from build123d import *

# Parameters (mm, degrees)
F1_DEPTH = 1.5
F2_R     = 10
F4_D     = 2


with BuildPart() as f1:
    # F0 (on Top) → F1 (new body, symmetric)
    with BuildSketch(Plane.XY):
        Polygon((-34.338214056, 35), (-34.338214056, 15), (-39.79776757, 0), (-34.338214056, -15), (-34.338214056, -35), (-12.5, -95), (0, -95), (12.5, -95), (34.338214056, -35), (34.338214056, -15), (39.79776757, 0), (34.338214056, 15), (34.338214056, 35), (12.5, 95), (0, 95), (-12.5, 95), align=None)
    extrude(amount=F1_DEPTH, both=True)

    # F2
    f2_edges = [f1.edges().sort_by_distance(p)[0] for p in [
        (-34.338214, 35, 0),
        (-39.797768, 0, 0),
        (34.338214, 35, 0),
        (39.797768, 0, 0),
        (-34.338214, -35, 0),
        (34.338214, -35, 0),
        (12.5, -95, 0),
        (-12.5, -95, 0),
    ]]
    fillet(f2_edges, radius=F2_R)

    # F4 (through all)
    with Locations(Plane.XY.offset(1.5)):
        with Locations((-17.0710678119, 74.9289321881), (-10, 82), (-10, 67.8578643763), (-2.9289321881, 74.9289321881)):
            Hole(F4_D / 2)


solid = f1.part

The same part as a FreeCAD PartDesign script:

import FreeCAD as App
import Part
import Sketcher
Q = App.Units.Quantity


def edges_at(feature, points):
    """Names of the edges that pass closest to the given points."""
    edges = feature.Shape.Edges
    near = lambda p: min(range(len(edges)), key=lambda i: edges[i].distToShape(Part.Vertex(*p))[0])
    return sorted({f"Edge{near(p) + 1}" for p in points})


def add_polygon(sketch, points):
    """Adds a closed chain of lines whose ends are joined by coincident constraints."""
    first, n = sketch.GeometryCount, len(points)
    for a, b in zip(points, points[1:] + points[:1]):
        sketch.addGeometry(Part.LineSegment(App.Vector(*a, 0), App.Vector(*b, 0)), False)
    for i in range(n):
        sketch.addConstraint(Sketcher.Constraint("Coincident", first + i, 2, first + (i + 1) % n, 1))

doc = App.newDocument("Part")
params = doc.addObject("Spreadsheet::Sheet", "Params")
for row, (alias, value) in enumerate([
    ("sketch1_width", "25 mm"),
    ("sketch1_height", "20 mm"),
    ("pad1_length", "3 mm"),
    ("fillet_radius", "10 mm"),
    ("sketch2_diameter", "2 mm"),
    ("hole_diameter", "2 mm"),
], start=1):
    params.set(f"A{row}", alias)
    params.set(f"B{row}", "=" + value)
    params.setAlias(f"B{row}", alias)

body = doc.addObject("PartDesign::Body", "Body")

# Sketch on XY plane
sketch1 = body.newObject("Sketcher::SketchObject", "Sketch")
sketch1.AttachmentSupport = (doc.getObject("XY_Plane"), [""])
sketch1.MapMode = "FlatFace"
add_polygon(sketch1, [(-34, 35), (-34, 15), (-40, 0), (-34, -15), (-34, -35), (-12, -95), (12, -95), (34, -35), (34, -15), (40, 0), (34, 15), (34, 35), (12, 95), (-12, 95)])  # lines 0-13
sketch1.addConstraint([
    Sketcher.Constraint("Vertical", 0),
    Sketcher.Constraint("Vertical", 3),
    Sketcher.Constraint("Horizontal", 5),
    Sketcher.Constraint("Vertical", 7),
    Sketcher.Constraint("Vertical", 10),
    Sketcher.Constraint("Horizontal", 12),
    Sketcher.Constraint("Symmetric", 0, 2, 7, 2, -1, 1),
    Sketcher.Constraint("Symmetric", 1, 2, 8, 2, -1, 1),
    Sketcher.Constraint("Symmetric", 2, 2, 9, 2, -1, 1),
    Sketcher.Constraint("Symmetric", 4, 2, 11, 2, -1, 1),
    Sketcher.Constraint("Symmetric", 3, 2, 6, 2, -2),
    Sketcher.Constraint("PointOnObject", 1, 2, -1),
    Sketcher.Constraint("Parallel", 2, 4),
    Sketcher.Constraint("Parallel", 1, 6),
    Sketcher.Constraint("Parallel", 9, 11),
    Sketcher.Constraint("Parallel", 8, 13),
    Sketcher.Constraint("Horizontal", 2, 2, 7, 2),
    Sketcher.Constraint("Horizontal", 10, 2, 13, 2),
    Sketcher.Constraint("DistanceX", 5, 1, 5, 2, 25.0),
    Sketcher.Constraint("DistanceY", 0, 2, 0, 1, 20.0),
    Sketcher.Constraint("Angle", 1, Q("-110 deg")),
    Sketcher.Constraint("DistanceY", -1, 1, 0, 2, 15.0),
    Sketcher.Constraint("DistanceY", 4, 2, -1, 1, 95.0),
])
sketch1.setExpression("Constraints[32]", "Params.sketch1_width")
sketch1.setExpression("Constraints[33]", "Params.sketch1_height")
pad1 = body.newObject("PartDesign::Pad", "Pad")
pad1.Profile = sketch1
pad1.setExpression("Length", "Params.pad1_length")
pad1.Midplane = True
doc.recompute()

fillet = body.newObject("PartDesign::Fillet", "Fillet")
fillet.Base = (pad1, edges_at(pad1, [
    (-34.338, 35, 0),
    (-39.798, 0, 0),
    (34.338, 35, 0),
    (39.798, 0, 0),
    (-34.338, -35, 0),
    (34.338, -35, 0),
    (12.5, -95, 0),
    (-12.5, -95, 0),
]))
fillet.setExpression("Radius", "Params.fillet_radius")

# Sketch on XY plane
sketch2 = body.newObject("Sketcher::SketchObject", "Sketch001")
sketch2.AttachmentSupport = (doc.getObject("XY_Plane"), [""])
sketch2.MapMode = "FlatFace"
sketch2.AttachmentOffset = App.Placement(App.Vector(0, 0, 1.5), App.Rotation())
sketch2.addGeometry([
    Part.Circle(App.Vector(-17.1, 74.9, 0), App.Vector(0, 0, 1), 1),
    Part.Circle(App.Vector(-10, 82, 0), App.Vector(0, 0, 1), 1),
    Part.Circle(App.Vector(-10, 67.9, 0), App.Vector(0, 0, 1), 1),
    Part.Circle(App.Vector(-2.9, 74.9, 0), App.Vector(0, 0, 1), 1),
], False)
sketch2.addConstraint([
    Sketcher.Constraint("Equal", 0, 1),
    Sketcher.Constraint("Equal", 1, 2),
    Sketcher.Constraint("Equal", 2, 3),
    Sketcher.Constraint("Horizontal", 0, 3, 3, 3),
    Sketcher.Constraint("Vertical", 1, 3, 2, 3),
    Sketcher.Constraint("Diameter", 0, 2.0),
    Sketcher.Constraint("DistanceX", 1, 3, -1, 1, 10.0),
    Sketcher.Constraint("DistanceY", -1, 1, 1, 3, 82.0),
    Sketcher.Constraint("DistanceX", 0, 3, -1, 1, 17.071068),
    Sketcher.Constraint("DistanceY", -1, 1, 0, 3, 74.928932),
    Sketcher.Constraint("DistanceY", -1, 1, 2, 3, 67.857864),
    Sketcher.Constraint("DistanceX", 3, 3, -1, 1, 2.928932),
])
sketch2.setExpression("Constraints[5]", "Params.sketch2_diameter")
doc.recompute()
hole = body.newObject("PartDesign::Hole", "Hole")
hole.Profile = sketch2
hole.ThreadType = "None"
hole.setExpression("Diameter", "Params.hole_diameter")
hole.DepthType = "ThroughAll"

doc.recompute()
